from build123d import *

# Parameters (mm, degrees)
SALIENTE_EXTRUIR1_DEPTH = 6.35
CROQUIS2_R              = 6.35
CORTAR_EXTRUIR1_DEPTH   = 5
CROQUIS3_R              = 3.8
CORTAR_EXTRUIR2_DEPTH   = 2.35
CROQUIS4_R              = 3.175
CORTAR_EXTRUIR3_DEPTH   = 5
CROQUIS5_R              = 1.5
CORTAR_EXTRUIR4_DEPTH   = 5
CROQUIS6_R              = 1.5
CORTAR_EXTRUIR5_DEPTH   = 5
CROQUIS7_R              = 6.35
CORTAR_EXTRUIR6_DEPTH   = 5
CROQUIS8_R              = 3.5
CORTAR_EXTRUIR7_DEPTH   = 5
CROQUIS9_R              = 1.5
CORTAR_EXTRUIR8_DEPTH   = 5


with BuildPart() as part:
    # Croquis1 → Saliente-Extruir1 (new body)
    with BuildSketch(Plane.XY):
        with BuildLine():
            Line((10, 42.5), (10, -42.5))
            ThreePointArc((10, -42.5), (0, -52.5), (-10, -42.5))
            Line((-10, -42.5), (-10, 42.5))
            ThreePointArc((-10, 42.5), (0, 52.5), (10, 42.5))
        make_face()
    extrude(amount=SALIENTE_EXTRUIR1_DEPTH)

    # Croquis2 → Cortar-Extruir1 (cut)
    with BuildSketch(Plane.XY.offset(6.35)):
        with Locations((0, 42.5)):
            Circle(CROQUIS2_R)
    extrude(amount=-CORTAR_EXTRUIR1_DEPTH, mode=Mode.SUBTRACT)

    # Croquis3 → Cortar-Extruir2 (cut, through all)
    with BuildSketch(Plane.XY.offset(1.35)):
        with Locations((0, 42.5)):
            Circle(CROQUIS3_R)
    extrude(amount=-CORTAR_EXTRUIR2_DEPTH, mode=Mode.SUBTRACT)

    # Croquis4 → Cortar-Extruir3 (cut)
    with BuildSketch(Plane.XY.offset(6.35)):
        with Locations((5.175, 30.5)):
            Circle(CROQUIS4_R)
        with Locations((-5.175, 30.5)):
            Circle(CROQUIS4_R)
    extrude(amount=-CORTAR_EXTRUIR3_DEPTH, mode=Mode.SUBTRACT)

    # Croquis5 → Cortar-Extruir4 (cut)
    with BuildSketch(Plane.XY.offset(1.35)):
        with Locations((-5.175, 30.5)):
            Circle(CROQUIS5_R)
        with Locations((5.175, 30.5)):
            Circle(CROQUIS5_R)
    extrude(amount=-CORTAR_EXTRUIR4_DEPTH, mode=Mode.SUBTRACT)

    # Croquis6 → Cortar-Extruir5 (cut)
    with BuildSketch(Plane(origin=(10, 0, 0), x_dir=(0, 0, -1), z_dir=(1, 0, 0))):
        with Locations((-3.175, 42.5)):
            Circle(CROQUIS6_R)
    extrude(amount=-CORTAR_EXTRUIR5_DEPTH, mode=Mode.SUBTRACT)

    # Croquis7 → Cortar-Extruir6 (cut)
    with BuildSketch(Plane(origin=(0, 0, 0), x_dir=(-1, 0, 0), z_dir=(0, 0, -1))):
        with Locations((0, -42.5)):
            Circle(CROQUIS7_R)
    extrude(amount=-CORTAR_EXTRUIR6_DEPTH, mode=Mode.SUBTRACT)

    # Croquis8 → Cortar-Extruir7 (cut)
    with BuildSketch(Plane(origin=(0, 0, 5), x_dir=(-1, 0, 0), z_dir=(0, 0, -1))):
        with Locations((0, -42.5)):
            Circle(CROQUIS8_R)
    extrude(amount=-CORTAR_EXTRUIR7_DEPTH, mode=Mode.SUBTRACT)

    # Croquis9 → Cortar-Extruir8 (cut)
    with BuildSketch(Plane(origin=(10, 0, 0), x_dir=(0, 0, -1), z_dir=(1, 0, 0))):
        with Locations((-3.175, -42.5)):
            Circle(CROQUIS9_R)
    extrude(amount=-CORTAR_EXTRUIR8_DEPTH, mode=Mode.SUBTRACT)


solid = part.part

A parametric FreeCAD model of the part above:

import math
import FreeCAD as App
import Part
import Sketcher
from FreeCAD import Vector
Q = App.Units.Quantity

doc = App.newDocument("Part")
body = doc.addObject("PartDesign::Body", "Body")

# Sketch on XY plane
sketch1 = body.newObject("Sketcher::SketchObject", "Sketch")
sketch1.AttachmentSupport = (doc.getObject("XY_Plane"), [""])
sketch1.MapMode = "FlatFace"
sketch1.addGeometry(Part.LineSegment(Vector(10, -42, 0), Vector(10, 42, 0)), False)
sketch1.addGeometry(Part.ArcOfCircle(Part.Circle(Vector(0, 42, 0), Vector(0, 0, 1), 10), math.radians(0), math.radians(180)), False)
sketch1.addGeometry(Part.LineSegment(Vector(-10, 42, 0), Vector(-10, -42, 0)), False)
sketch1.addGeometry(Part.ArcOfCircle(Part.Circle(Vector(0, -42, 0), Vector(0, 0, 1), 10), math.radians(180), math.radians(360)), False)
sketch1.addConstraint(Sketcher.Constraint("Tangent", 0, 2, 1, 1))
sketch1.addConstraint(Sketcher.Constraint("Tangent", 1, 2, 2, 1))
sketch1.addConstraint(Sketcher.Constraint("Tangent", 2, 2, 3, 1))
sketch1.addConstraint(Sketcher.Constraint("Tangent", 3, 2, 0, 1))
sketch1.addConstraint(Sketcher.Constraint("Vertical", 0))
sketch1.addConstraint(Sketcher.Constraint("Vertical", 2))
sketch1.addConstraint(Sketcher.Constraint("Symmetric", 1, 3, 3, 3, -1, 1))
sketch1.addConstraint(Sketcher.Constraint("Radius", 1, Q("10 mm")))
sketch1.addConstraint(Sketcher.Constraint("DistanceY", 0, 1, 0, 2, Q("85 mm")))
pad1 = body.newObject("PartDesign::Pad", "Pad")
pad1.Profile = sketch1
pad1.Length = 6.35

# Sketch on XY plane
sketch2 = body.newObject("Sketcher::SketchObject", "Sketch001")
sketch2.AttachmentSupport = (doc.getObject("XY_Plane"), [""])
sketch2.MapMode = "FlatFace"
sketch2.AttachmentOffset = App.Placement(Vector(0, 0, 6.35), App.Rotation())
sketch2.addGeometry(Part.Circle(Vector(0, 42, 0), Vector(0, 0, 1), 6), False)
sketch2.addConstraint(Sketcher.Constraint("PointOnObject", 0, 3, -2))
sketch2.addConstraint(Sketcher.Constraint("Diameter", 0, Q("12.7 mm")))
sketch2.addConstraint(Sketcher.Constraint("DistanceY", -1, 1, 0, 3, Q("42.5 mm")))
pocket1 = body.newObject("PartDesign::Pocket", "Pocket")
pocket1.Profile = sketch2
pocket1.Length = 5

# Sketch on XY plane
sketch3 = body.newObject("Sketcher::SketchObject", "Sketch002")
sketch3.AttachmentSupport = (doc.getObject("XY_Plane"), [""])
sketch3.MapMode = "FlatFace"
sketch3.AttachmentOffset = App.Placement(Vector(0, 0, 1.35), App.Rotation())
sketch3.addGeometry(Part.Circle(Vector(0, 42.5, 0), Vector(0, 0, 1), 3.8), False)
sketch3.addConstraint(Sketcher.Constraint("PointOnObject", 0, 3, -2))
sketch3.addConstraint(Sketcher.Constraint("Diameter", 0, Q("7.6 mm")))
sketch3.addConstraint(Sketcher.Constraint("DistanceY", -1, 1, 0, 3, Q("42.5 mm")))
pocket2 = body.newObject("PartDesign::Pocket", "Pocket001")
pocket2.Profile = sketch3
pocket2.Type = "ThroughAll"

# Sketch on XY plane
sketch4 = body.newObject("Sketcher::SketchObject", "Sketch003")
sketch4.AttachmentSupport = (doc.getObject("XY_Plane"), [""])
sketch4.MapMode = "FlatFace"
sketch4.AttachmentOffset = App.Placement(Vector(0, 0, 6.35), App.Rotation())
sketch4.addGeometry(Part.Circle(Vector(5.2, 30.5, 0), Vector(0, 0, 1), 3.2), False)
sketch4.addGeometry(Part.Circle(Vector(-5.2, 30.5, 0), Vector(0, 0, 1), 3.2), False)
sketch4.addConstraint(Sketcher.Constraint("Equal", 0, 1))
sketch4.addConstraint(Sketcher.Constraint("Symmetric", 0, 3, 1, 3, -2))
sketch4.addConstraint(Sketcher.Constraint("Diameter", 0, Q("6.35 mm")))
sketch4.addConstraint(Sketcher.Constraint("DistanceY", -1, 1, 0, 3, Q("30.5 mm")))
sketch4.addConstraint(Sketcher.Constraint("DistanceX", 1, 3, 0, 3, Q("10.35 mm")))
pocket3 = body.newObject("PartDesign::Pocket", "Pocket002")
pocket3.Profile = sketch4
pocket3.Length = 5

# Sketch on XY plane
sketch5 = body.newObject("Sketcher::SketchObject", "Sketch004")
sketch5.AttachmentSupport = (doc.getObject("XY_Plane"), [""])
sketch5.MapMode = "FlatFace"
sketch5.AttachmentOffset = App.Placement(Vector(0, 0, 1.35), App.Rotation())
sketch5.addGeometry(Part.Circle(Vector(-5.2, 30.5, 0), Vector(0, 0, 1), 1.5), False)
sketch5.addGeometry(Part.Circle(Vector(5.2, 30.5, 0), Vector(0, 0, 1), 1.5), False)
sketch5.addConstraint(Sketcher.Constraint("Equal", 0, 1))
sketch5.addConstraint(Sketcher.Constraint("Symmetric", 0, 3, 1, 3, -2))
sketch5.addConstraint(Sketcher.Constraint("Diameter", 0, Q("3 mm")))
sketch5.addConstraint(Sketcher.Constraint("DistanceY", -1, 1, 0, 3, Q("30.5 mm")))
sketch5.addConstraint(Sketcher.Constraint("DistanceX", 0, 3, 1, 3, Q("10.35 mm")))
pocket4 = body.newObject("PartDesign::Pocket", "Pocket003")
pocket4.Profile = sketch5
pocket4.Length = 5

# Sketch on YZ plane
sketch6 = body.newObject("Sketcher::SketchObject", "Sketch005")
sketch6.AttachmentSupport = (doc.getObject("YZ_Plane"), [""])
sketch6.MapMode = "FlatFace"
sketch6.AttachmentOffset = App.Placement(Vector(0, 0, 10), App.Rotation())
sketch6.addGeometry(Part.Circle(Vector(42.5, 3.2, 0), Vector(0, 0, 1), 1.5), False)
sketch6.addConstraint(Sketcher.Constraint("Diameter", 0, Q("3 mm")))
sketch6.addConstraint(Sketcher.Constraint("DistanceX", -1, 1, 0, 3, Q("42.5 mm")))
sketch6.addConstraint(Sketcher.Constraint("DistanceY", -1, 1, 0, 3, Q("3.175 mm")))
pocket5 = body.newObject("PartDesign::Pocket", "Pocket004")
pocket5.Profile = sketch6
pocket5.Length = 5

# Sketch on XY plane
sketch7 = body.newObject("Sketcher::SketchObject", "Sketch006")
sketch7.AttachmentSupport = (doc.getObject("XY_Plane"), [""])
sketch7.MapMode = "FlatFace"
sketch7.addGeometry(Part.Circle(Vector(0, -42, 0), Vector(0, 0, 1), 6), False)
sketch7.addConstraint(Sketcher.Constraint("PointOnObject", 0, 3, -2))
sketch7.addConstraint(Sketcher.Constraint("Diameter", 0, Q("12.7 mm")))
sketch7.addConstraint(Sketcher.Constraint("DistanceY", 0, 3, -1, 1, Q("42.5 mm")))
pocket6 = body.newObject("PartDesign::Pocket", "Pocket005")
pocket6.Profile = sketch7
pocket6.Length = 5
pocket6.Reversed = True

# Sketch on XY plane
sketch8 = body.newObject("Sketcher::SketchObject", "Sketch007")
sketch8.AttachmentSupport = (doc.getObject("XY_Plane"), [""])
sketch8.MapMode = "FlatFace"
sketch8.AttachmentOffset = App.Placement(Vector(0, 0, 5), App.Rotation())
sketch8.addGeometry(Part.Circle(Vector(0, -42.5, 0), Vector(0, 0, 1), 3.5), False)
sketch8.addConstraint(Sketcher.Constraint("PointOnObject", 0, 3, -2))
sketch8.addConstraint(Sketcher.Constraint("Diameter", 0, Q("7 mm")))
sketch8.addConstraint(Sketcher.Constraint("DistanceY", 0, 3, -1, 1, Q("42.5 mm")))
pocket7 = body.newObject("PartDesign::Pocket", "Pocket006")
pocket7.Profile = sketch8
pocket7.Length = 5
pocket7.Reversed = True

# Sketch on YZ plane
sketch9 = body.newObject("Sketcher::SketchObject", "Sketch008")
sketch9.AttachmentSupport = (doc.getObject("YZ_Plane"), [""])
sketch9.MapMode = "FlatFace"
sketch9.AttachmentOffset = App.Placement(Vector(0, 0, 10), App.Rotation())
sketch9.addGeometry(Part.Circle(Vector(-42.5, 3.2, 0), Vector(0, 0, 1), 1.5), False)
sketch9.addConstraint(Sketcher.Constraint("Diameter", 0, Q("3 mm")))
sketch9.addConstraint(Sketcher.Constraint("DistanceX", 0, 3, -1, 1, Q("42.5 mm")))
sketch9.addConstraint(Sketcher.Constraint("DistanceY", -1, 1, 0, 3, Q("3.175 mm")))
pocket8 = body.newObject("PartDesign::Pocket", "Pocket007")
pocket8.Profile = sketch9
pocket8.Length = 5

doc.recompute()
